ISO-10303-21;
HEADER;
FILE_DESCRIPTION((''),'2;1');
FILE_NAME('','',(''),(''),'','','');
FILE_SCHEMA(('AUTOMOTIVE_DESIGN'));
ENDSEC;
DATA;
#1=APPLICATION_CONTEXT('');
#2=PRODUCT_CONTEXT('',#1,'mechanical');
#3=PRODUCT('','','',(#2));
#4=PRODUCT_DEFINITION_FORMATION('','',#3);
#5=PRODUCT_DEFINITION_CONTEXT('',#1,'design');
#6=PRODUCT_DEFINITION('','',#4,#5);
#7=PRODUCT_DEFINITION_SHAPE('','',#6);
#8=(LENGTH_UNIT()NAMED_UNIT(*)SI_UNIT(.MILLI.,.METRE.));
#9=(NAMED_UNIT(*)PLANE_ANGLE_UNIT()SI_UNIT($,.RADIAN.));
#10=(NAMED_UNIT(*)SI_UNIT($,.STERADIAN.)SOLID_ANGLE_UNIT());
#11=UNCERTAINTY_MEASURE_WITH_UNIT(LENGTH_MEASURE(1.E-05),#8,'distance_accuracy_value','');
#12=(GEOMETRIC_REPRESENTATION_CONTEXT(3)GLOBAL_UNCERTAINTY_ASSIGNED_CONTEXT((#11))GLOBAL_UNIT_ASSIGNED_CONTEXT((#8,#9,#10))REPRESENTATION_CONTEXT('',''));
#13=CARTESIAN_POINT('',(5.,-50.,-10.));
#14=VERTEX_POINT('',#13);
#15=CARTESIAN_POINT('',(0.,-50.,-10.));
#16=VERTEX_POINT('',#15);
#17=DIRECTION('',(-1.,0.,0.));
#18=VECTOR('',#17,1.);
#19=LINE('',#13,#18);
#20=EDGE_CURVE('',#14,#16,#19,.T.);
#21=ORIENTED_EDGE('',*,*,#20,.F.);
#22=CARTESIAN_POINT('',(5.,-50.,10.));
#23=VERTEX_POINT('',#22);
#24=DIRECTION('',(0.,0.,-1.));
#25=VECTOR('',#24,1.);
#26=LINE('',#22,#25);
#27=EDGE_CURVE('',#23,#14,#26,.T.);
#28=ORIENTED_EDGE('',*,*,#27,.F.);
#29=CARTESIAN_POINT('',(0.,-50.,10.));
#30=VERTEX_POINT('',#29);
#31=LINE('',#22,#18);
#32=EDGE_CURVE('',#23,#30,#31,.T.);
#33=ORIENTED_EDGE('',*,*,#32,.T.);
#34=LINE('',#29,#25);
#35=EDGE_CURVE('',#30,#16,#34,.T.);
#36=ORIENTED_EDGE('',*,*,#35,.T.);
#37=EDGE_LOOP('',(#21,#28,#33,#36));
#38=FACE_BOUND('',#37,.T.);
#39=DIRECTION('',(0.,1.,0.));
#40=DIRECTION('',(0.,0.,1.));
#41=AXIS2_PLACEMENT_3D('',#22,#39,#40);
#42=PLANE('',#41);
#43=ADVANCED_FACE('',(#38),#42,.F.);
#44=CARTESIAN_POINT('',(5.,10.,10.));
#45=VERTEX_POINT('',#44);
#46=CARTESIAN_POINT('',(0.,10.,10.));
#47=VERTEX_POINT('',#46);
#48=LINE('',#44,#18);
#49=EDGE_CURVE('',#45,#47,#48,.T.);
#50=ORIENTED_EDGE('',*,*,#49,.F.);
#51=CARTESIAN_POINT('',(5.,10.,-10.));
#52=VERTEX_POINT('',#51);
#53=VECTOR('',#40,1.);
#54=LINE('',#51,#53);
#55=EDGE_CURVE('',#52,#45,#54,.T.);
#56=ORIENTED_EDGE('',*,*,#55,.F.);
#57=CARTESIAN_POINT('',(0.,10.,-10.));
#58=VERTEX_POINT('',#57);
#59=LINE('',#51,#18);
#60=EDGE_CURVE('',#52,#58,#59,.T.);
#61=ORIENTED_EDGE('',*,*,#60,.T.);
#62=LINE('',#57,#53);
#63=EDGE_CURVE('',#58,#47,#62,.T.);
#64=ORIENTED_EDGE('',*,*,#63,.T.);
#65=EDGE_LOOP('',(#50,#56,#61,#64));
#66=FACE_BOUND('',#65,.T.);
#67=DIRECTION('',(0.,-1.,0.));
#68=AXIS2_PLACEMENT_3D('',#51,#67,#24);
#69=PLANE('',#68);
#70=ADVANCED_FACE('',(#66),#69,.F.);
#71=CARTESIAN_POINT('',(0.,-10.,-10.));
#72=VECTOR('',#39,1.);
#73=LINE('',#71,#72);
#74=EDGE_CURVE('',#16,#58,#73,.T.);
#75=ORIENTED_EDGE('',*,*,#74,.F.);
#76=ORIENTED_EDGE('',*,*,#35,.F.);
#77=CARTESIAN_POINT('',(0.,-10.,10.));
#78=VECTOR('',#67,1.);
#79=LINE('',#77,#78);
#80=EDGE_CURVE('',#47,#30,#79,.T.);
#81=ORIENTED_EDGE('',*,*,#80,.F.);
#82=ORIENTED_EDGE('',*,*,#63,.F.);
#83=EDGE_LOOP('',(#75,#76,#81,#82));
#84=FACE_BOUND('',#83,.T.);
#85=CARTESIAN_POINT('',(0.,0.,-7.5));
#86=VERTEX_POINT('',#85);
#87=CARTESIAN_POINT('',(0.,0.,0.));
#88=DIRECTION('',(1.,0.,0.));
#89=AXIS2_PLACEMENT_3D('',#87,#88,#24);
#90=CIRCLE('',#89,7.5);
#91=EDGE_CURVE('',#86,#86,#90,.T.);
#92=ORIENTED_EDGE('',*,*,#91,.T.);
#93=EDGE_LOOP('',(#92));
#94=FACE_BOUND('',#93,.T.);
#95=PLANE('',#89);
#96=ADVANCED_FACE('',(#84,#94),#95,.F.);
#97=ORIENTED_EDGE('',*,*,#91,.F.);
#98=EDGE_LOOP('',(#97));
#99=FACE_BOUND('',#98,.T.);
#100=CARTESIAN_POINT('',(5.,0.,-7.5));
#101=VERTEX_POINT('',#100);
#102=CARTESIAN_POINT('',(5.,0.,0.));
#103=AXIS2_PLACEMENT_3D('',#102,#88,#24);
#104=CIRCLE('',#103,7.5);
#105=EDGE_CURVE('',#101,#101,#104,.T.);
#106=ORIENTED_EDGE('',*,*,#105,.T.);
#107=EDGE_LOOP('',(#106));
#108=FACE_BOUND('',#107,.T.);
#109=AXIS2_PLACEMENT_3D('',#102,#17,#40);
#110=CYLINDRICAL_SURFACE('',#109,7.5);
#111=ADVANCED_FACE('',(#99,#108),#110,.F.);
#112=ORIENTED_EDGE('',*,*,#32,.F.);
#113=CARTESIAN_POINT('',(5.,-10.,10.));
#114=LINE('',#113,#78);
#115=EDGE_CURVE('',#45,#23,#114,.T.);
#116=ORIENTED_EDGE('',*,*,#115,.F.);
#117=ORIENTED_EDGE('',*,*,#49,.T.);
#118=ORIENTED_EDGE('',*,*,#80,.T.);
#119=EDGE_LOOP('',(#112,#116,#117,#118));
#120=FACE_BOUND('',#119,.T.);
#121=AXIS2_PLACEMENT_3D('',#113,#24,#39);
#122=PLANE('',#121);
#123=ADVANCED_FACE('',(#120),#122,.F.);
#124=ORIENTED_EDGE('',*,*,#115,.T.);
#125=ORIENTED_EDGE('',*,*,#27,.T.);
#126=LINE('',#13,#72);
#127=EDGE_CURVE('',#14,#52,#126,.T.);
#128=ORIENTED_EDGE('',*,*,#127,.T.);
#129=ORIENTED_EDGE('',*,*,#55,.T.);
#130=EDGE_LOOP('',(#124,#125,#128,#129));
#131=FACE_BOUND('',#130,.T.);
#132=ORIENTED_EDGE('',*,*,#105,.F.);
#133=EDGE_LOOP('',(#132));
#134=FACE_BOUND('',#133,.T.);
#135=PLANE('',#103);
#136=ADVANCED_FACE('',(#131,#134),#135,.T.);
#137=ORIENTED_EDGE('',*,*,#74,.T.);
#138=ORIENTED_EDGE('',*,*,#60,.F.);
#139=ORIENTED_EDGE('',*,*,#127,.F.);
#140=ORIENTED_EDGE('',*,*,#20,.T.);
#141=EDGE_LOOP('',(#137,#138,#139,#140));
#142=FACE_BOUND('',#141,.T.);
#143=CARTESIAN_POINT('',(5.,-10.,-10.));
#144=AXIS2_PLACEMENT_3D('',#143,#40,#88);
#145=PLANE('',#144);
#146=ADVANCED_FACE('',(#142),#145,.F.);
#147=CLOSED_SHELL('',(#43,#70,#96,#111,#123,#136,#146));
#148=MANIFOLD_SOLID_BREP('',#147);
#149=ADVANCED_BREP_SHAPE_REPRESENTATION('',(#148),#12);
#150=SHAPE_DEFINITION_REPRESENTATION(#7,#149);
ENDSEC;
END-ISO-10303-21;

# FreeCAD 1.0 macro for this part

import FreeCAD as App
import Part
import Sketcher
from FreeCAD import Vector
Q = App.Units.Quantity

doc = App.newDocument("Part")
body = doc.addObject("PartDesign::Body", "Body")

sketch1 = doc.addObject("Sketcher::SketchObject", "Sketch")
body.addObject(sketch1)
sketch1.AttachmentSupport = (doc.YZ_Plane, [""])
sketch1.MapMode = "FlatFace"
sketch1.addGeometry(Part.LineSegment(Vector(-50, 10, 0), Vector(-50, -10, 0)), False)
sketch1.addGeometry(Part.LineSegment(Vector(-50, -10, 0), Vector(10, -10, 0)), False)
sketch1.addGeometry(Part.LineSegment(Vector(10, -10, 0), Vector(10, 10, 0)), False)
sketch1.addGeometry(Part.LineSegment(Vector(10, 10, 0), Vector(-50, 10, 0)), False)
sketch1.addGeometry(Part.Circle(Vector(0, 0, 0), Vector(0, 0, 1), 8), False)
sketch1.addConstraint(Sketcher.Constraint("Coincident", 0, 2, 1, 1))
sketch1.addConstraint(Sketcher.Constraint("Coincident", 1, 2, 2, 1))
sketch1.addConstraint(Sketcher.Constraint("Coincident", 2, 2, 3, 1))
sketch1.addConstraint(Sketcher.Constraint("Coincident", 3, 2, 0, 1))
sketch1.addConstraint(Sketcher.Constraint("Vertical", 0))
sketch1.addConstraint(Sketcher.Constraint("Horizontal", 1))
sketch1.addConstraint(Sketcher.Constraint("Vertical", 2))
sketch1.addConstraint(Sketcher.Constraint("Horizontal", 3))
sketch1.addConstraint(Sketcher.Constraint("Coincident", 4, 3, -1, 1))
sketch1.addConstraint(Sketcher.Constraint("Diameter", 4, Q("15 mm")))
sketch1.addConstraint(Sketcher.Constraint("DistanceX", 1, 1, 1, 2, Q("60 mm")))
sketch1.addConstraint(Sketcher.Constraint("DistanceY", 0, 2, 0, 1, Q("20 mm")))
sketch1.addConstraint(Sketcher.Constraint("DistanceX", 0, 2, -1, 1, Q("50 mm")))
sketch1.addConstraint(Sketcher.Constraint("DistanceY", 0, 2, -1, 1, Q("10 mm")))
pad1 = doc.addObject("PartDesign::Pad", "Pad")
body.addObject(pad1)
pad1.Profile = sketch1
pad1.Length = 5

doc.recompute()
